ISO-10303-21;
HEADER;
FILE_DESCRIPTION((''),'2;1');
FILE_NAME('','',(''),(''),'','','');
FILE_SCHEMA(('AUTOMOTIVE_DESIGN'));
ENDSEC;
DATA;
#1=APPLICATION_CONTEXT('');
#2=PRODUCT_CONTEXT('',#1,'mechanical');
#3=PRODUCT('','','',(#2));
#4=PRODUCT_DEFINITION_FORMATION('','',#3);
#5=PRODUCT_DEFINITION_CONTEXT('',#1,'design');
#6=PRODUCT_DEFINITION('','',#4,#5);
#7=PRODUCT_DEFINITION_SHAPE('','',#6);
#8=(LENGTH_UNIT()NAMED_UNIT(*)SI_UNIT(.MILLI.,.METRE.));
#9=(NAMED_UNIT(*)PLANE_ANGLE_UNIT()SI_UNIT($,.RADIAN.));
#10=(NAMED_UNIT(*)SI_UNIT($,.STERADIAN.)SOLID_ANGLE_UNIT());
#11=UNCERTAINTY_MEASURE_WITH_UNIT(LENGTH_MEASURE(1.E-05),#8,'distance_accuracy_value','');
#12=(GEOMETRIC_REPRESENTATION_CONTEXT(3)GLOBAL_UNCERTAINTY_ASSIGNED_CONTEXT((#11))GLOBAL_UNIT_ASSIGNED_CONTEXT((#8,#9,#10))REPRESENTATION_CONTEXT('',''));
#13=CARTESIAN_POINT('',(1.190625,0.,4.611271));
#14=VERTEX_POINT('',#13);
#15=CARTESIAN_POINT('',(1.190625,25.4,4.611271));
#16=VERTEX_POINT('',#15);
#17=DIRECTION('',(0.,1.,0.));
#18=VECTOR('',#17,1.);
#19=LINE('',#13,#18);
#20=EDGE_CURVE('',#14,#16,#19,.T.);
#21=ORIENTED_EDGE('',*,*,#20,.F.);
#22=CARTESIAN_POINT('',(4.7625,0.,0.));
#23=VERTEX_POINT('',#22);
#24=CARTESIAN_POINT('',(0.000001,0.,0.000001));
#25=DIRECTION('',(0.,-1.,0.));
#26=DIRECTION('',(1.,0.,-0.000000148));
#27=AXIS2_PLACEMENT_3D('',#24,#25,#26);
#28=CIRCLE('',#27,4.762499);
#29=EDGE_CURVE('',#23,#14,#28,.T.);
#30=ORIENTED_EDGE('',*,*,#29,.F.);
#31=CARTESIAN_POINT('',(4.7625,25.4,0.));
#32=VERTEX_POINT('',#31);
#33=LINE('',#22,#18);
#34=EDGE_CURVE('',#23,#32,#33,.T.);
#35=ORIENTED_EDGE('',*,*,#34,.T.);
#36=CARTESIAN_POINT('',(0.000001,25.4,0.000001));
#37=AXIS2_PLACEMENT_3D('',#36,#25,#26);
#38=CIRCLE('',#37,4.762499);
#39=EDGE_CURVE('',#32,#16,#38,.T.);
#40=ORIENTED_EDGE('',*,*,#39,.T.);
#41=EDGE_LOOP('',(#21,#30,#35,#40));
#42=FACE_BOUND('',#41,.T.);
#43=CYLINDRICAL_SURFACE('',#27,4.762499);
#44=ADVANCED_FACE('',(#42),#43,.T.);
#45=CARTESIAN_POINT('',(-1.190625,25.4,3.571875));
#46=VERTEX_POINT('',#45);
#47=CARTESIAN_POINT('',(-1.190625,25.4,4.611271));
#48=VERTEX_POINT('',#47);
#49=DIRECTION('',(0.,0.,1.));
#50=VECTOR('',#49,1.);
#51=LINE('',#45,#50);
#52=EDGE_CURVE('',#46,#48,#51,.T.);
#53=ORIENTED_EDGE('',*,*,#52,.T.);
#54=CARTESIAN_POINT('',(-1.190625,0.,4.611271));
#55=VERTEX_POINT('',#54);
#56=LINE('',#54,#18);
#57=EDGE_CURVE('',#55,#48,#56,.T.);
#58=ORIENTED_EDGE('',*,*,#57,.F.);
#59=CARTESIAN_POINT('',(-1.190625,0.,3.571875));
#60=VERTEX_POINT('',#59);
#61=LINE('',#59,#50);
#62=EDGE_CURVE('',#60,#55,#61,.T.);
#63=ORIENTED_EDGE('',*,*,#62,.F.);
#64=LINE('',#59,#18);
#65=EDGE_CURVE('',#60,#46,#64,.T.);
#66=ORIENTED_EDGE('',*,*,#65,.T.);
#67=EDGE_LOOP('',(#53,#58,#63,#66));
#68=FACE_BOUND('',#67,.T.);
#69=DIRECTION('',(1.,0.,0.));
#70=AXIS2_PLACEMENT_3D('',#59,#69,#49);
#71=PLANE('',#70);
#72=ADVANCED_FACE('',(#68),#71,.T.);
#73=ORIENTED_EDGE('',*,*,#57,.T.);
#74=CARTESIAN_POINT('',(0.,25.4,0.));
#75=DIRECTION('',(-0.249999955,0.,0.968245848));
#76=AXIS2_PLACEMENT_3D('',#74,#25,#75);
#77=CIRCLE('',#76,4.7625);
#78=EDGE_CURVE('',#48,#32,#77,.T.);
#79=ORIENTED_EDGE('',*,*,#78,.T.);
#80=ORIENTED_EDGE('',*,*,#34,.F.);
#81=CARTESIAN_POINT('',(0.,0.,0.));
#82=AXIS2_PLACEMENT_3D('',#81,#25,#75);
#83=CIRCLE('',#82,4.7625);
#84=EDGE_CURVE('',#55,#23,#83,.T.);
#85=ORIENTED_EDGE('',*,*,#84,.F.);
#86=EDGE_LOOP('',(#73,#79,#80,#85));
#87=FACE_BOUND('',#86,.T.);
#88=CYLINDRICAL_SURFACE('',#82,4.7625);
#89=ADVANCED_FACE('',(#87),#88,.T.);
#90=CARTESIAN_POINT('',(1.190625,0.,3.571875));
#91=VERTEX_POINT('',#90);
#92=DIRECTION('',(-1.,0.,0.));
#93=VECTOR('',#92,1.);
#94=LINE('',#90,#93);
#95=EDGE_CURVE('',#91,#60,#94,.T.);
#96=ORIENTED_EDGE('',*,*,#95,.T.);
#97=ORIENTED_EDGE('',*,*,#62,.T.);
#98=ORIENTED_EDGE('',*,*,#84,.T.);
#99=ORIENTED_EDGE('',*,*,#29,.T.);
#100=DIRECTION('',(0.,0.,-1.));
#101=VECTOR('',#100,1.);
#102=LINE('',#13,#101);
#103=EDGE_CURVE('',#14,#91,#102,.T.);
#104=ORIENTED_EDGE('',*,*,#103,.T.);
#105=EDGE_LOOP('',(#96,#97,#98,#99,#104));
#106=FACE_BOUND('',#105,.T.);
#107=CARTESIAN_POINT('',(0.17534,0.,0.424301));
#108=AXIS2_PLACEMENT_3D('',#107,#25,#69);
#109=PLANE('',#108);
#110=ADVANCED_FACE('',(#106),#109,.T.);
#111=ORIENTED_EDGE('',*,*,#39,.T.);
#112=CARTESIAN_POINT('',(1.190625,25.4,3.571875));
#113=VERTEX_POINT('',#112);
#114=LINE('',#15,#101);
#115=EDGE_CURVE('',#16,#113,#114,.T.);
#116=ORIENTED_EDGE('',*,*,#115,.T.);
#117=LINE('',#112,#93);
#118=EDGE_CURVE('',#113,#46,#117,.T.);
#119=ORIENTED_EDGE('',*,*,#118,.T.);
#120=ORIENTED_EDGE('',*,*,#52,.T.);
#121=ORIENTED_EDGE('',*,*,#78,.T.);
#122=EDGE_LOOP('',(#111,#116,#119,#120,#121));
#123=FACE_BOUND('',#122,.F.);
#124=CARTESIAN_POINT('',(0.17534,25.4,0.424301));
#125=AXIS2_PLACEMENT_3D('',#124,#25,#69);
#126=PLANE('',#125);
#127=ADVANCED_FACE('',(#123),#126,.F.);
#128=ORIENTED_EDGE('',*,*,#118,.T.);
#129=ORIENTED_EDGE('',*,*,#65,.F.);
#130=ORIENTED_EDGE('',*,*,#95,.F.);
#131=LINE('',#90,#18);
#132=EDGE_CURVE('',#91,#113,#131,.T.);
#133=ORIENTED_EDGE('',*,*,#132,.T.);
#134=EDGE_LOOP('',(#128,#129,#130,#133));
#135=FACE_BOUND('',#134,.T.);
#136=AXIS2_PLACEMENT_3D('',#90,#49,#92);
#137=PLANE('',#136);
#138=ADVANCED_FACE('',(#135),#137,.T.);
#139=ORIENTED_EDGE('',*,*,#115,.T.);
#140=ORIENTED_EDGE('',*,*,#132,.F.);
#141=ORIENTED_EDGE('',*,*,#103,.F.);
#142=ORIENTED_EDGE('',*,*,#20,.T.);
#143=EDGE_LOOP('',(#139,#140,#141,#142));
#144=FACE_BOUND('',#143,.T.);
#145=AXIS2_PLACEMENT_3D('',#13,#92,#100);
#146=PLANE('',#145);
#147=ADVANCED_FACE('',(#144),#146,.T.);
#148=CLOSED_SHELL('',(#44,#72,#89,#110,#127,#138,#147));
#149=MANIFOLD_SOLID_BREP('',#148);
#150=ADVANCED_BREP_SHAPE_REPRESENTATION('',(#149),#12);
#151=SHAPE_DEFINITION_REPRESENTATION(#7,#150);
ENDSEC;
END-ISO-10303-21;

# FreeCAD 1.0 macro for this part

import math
import FreeCAD as App
import Part
import Sketcher

V = App.Vector
Q = App.Units.Quantity

doc = App.newDocument("Part")
body = doc.addObject("PartDesign::Body", "Body")

# Sketch on XZ plane
sketch1 = body.newObject("Sketcher::SketchObject", "Sketch")
sketch1.AttachmentSupport = (doc.getObject("XZ_Plane"), [""])
sketch1.MapMode = "FlatFace"
sketch1.addGeometry(Part.ArcOfCircle(Part.Circle(V(0, 0, 0), V(0, 0, 1), 4.8), math.radians(104), math.radians(360)), False)
sketch1.addGeometry(Part.ArcOfCircle(Part.Circle(V(0, 0, 0), V(0, 0, 1), 4.8), math.radians(0), math.radians(76)), False)
sketch1.addGeometry(Part.LineSegment(V(1.2, 4.6, 0), V(1.2, 3.6, 0)), False)
sketch1.addGeometry(Part.LineSegment(V(1.2, 3.6, 0), V(-1.2, 3.6, 0)), False)
sketch1.addGeometry(Part.LineSegment(V(-1.2, 3.6, 0), V(-1.2, 4.6, 0)), False)
sketch1.addConstraint(Sketcher.Constraint("Tangent", 0, 2, 1, 1))
sketch1.addConstraint(Sketcher.Constraint("Coincident", 1, 2, 2, 1))
sketch1.addConstraint(Sketcher.Constraint("Coincident", 2, 2, 3, 1))
sketch1.addConstraint(Sketcher.Constraint("Coincident", 3, 2, 4, 1))
sketch1.addConstraint(Sketcher.Constraint("Coincident", 4, 2, 0, 1))
sketch1.addConstraint(Sketcher.Constraint("Vertical", 2))
sketch1.addConstraint(Sketcher.Constraint("Horizontal", 3))
sketch1.addConstraint(Sketcher.Constraint("Vertical", 4))
sketch1.addConstraint(Sketcher.Constraint("Coincident", 0, 3, -1, 1))
sketch1.addConstraint(Sketcher.Constraint("Equal", 0, 1))
sketch1.addConstraint(Sketcher.Constraint("PointOnObject", 0, 2, -1))
sketch1.addConstraint(Sketcher.Constraint("Horizontal", 1, 2, 4, 2))
sketch1.addConstraint(Sketcher.Constraint("Radius", 0, Q("0.1875 in")))
sketch1.addConstraint(Sketcher.Constraint("DistanceX", 3, 2, 3, 1, Q("0.09375 in")))
sketch1.addConstraint(Sketcher.Constraint("DistanceY", -1, 1, 2, 2, Q("0.140625 in")))
pad1 = body.newObject("PartDesign::Pad", "Pad")
pad1.Profile = sketch1
pad1.Length = Q("1 in")
pad1.Reversed = True

doc.recompute()
